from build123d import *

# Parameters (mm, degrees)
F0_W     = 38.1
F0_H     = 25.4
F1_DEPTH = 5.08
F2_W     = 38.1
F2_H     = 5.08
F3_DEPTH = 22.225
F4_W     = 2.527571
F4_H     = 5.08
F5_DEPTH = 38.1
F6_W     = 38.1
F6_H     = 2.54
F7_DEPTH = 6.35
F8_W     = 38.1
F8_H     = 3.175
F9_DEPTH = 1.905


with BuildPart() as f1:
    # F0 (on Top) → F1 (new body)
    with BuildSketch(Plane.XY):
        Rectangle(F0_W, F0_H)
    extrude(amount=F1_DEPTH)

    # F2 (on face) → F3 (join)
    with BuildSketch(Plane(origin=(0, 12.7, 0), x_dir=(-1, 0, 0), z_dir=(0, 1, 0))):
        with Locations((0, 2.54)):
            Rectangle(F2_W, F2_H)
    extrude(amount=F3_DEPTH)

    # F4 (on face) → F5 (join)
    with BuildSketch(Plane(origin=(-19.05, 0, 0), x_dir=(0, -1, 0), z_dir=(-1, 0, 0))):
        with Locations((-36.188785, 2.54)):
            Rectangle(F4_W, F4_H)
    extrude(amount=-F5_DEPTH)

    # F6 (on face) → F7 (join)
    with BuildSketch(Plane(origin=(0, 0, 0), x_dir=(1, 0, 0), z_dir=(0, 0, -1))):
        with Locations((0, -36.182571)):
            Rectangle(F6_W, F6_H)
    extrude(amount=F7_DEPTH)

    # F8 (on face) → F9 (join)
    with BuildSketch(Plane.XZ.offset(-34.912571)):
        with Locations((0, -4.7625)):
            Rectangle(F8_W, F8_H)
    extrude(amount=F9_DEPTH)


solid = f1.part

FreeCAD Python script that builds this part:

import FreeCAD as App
import Part
import Sketcher
Q = App.Units.Quantity


def add_polygon(sketch, points):
    """Adds a closed chain of lines whose ends are joined by coincident constraints."""
    first, n = sketch.GeometryCount, len(points)
    for a, b in zip(points, points[1:] + points[:1]):
        sketch.addGeometry(Part.LineSegment(App.Vector(*a, 0), App.Vector(*b, 0)), False)
    for i in range(n):
        sketch.addConstraint(Sketcher.Constraint("Coincident", first + i, 2, first + (i + 1) % n, 1))

doc = App.newDocument("Part")
body = doc.addObject("PartDesign::Body", "Body")

# Sketch on XY plane
sketch1 = body.newObject("Sketcher::SketchObject", "Sketch")
sketch1.AttachmentSupport = (doc.getObject("XY_Plane"), [""])
sketch1.MapMode = "FlatFace"
add_polygon(sketch1, [(-19, 13), (-19, -13), (19, -13), (19, 13)])  # lines 0-3
sketch1.addConstraint([
    Sketcher.Constraint("Vertical", 0),
    Sketcher.Constraint("Horizontal", 1),
    Sketcher.Constraint("Vertical", 2),
    Sketcher.Constraint("Horizontal", 3),
    Sketcher.Constraint("Symmetric", 0, 2, 2, 2, -1, 1),
    Sketcher.Constraint("DistanceY", 0, 2, 0, 1, Q("1 in")),
    Sketcher.Constraint("DistanceX", 1, 1, 1, 2, Q("1.5 in")),
])
pad1 = body.newObject("PartDesign::Pad", "Pad")
pad1.Profile = sketch1
pad1.Length = Q("0.2 in")

# Sketch on XZ plane
sketch2 = body.newObject("Sketcher::SketchObject", "Sketch001")
sketch2.AttachmentSupport = (doc.getObject("XZ_Plane"), [""])
sketch2.MapMode = "FlatFace"
sketch2.AttachmentOffset = App.Placement(App.Vector(0, 0, -0.5 * 25.4), App.Rotation())
add_polygon(sketch2, [(19, 5), (19, 0), (-19, 0), (-19, 5)])  # lines 0-3
sketch2.addConstraint([
    Sketcher.Constraint("Vertical", 0),
    Sketcher.Constraint("Horizontal", 1),
    Sketcher.Constraint("Vertical", 2),
    Sketcher.Constraint("Horizontal", 3),
    Sketcher.Constraint("Symmetric", 0, 2, 1, 2, -1, 1),
    Sketcher.Constraint("DistanceX", 1, 2, 1, 1, Q("1.5 in")),
    Sketcher.Constraint("DistanceY", 0, 2, 0, 1, Q("0.2 in")),
])
pad2 = body.newObject("PartDesign::Pad", "Pad001")
pad2.Profile = sketch2
pad2.Length = Q("0.875 in")
pad2.Reversed = True

# Sketch on YZ plane
sketch3 = body.newObject("Sketcher::SketchObject", "Sketch002")
sketch3.AttachmentSupport = (doc.getObject("YZ_Plane"), [""])
sketch3.MapMode = "FlatFace"
sketch3.AttachmentOffset = App.Placement(App.Vector(0, 0, -0.75 * 25.4), App.Rotation())
add_polygon(sketch3, [(37.5, 5.1), (37.5, 0), (34.9, 0), (34.9, 5.1)])  # lines 0-3
sketch3.addConstraint([
    Sketcher.Constraint("Vertical", 0),
    Sketcher.Constraint("Horizontal", 1),
    Sketcher.Constraint("Vertical", 2),
    Sketcher.Constraint("Horizontal", 3),
    Sketcher.Constraint("PointOnObject", 0, 2, -1),
    Sketcher.Constraint("DistanceY", 0, 2, 0, 1, Q("0.2 in")),
    Sketcher.Constraint("DistanceX", -1, 1, 1, 2, Q("1.375 in")),
    Sketcher.Constraint("DistanceX", 1, 2, 1, 1, 2.527571),
])
pad3 = body.newObject("PartDesign::Pad", "Pad002")
pad3.Profile = sketch3
pad3.Length = Q("1.5 in")

# Sketch on XY plane
sketch4 = body.newObject("Sketcher::SketchObject", "Sketch003")
sketch4.AttachmentSupport = (doc.getObject("XY_Plane"), [""])
sketch4.MapMode = "FlatFace"
add_polygon(sketch4, [(-19.1, 34.9), (-19.1, 37.5), (19.1, 37.5), (19.1, 34.9)])  # lines 0-3
sketch4.addConstraint([
    Sketcher.Constraint("Vertical", 0),
    Sketcher.Constraint("Horizontal", 1),
    Sketcher.Constraint("Vertical", 2),
    Sketcher.Constraint("Horizontal", 3),
    Sketcher.Constraint("DistanceX", 1, 1, 1, 2, Q("1.5 in")),
    Sketcher.Constraint("DistanceY", 0, 1, 0, 2, Q("0.1 in")),
    Sketcher.Constraint("DistanceX", 0, 2, -1, 1, Q("0.75 in")),
    Sketcher.Constraint("DistanceY", -1, 1, 0, 2, 37.452571),
])
pad4 = body.newObject("PartDesign::Pad", "Pad003")
pad4.Profile = sketch4
pad4.Length = Q("0.25 in")
pad4.Reversed = True

# Sketch on XZ plane
sketch5 = body.newObject("Sketcher::SketchObject", "Sketch004")
sketch5.AttachmentSupport = (doc.getObject("XZ_Plane"), [""])
sketch5.MapMode = "FlatFace"
sketch5.AttachmentOffset = App.Placement(App.Vector(0, 0, -34.912571), App.Rotation())
add_polygon(sketch5, [(-19.1, -3.2), (-19.1, -6.3), (19.1, -6.3), (19.1, -3.2)])  # lines 0-3
sketch5.addConstraint([
    Sketcher.Constraint("Vertical", 0),
    Sketcher.Constraint("Horizontal", 1),
    Sketcher.Constraint("Vertical", 2),
    Sketcher.Constraint("Horizontal", 3),
    Sketcher.Constraint("DistanceX", 1, 1, 1, 2, Q("1.5 in")),
    Sketcher.Constraint("DistanceY", 0, 2, 0, 1, Q("0.125 in")),
    Sketcher.Constraint("DistanceX", 0, 2, -1, 1, Q("0.75 in")),
    Sketcher.Constraint("DistanceY", 0, 2, -1, 1, Q("0.25 in")),
])
pad5 = body.newObject("PartDesign::Pad", "Pad004")
pad5.Profile = sketch5
pad5.Length = Q("0.075 in")

doc.recompute()
